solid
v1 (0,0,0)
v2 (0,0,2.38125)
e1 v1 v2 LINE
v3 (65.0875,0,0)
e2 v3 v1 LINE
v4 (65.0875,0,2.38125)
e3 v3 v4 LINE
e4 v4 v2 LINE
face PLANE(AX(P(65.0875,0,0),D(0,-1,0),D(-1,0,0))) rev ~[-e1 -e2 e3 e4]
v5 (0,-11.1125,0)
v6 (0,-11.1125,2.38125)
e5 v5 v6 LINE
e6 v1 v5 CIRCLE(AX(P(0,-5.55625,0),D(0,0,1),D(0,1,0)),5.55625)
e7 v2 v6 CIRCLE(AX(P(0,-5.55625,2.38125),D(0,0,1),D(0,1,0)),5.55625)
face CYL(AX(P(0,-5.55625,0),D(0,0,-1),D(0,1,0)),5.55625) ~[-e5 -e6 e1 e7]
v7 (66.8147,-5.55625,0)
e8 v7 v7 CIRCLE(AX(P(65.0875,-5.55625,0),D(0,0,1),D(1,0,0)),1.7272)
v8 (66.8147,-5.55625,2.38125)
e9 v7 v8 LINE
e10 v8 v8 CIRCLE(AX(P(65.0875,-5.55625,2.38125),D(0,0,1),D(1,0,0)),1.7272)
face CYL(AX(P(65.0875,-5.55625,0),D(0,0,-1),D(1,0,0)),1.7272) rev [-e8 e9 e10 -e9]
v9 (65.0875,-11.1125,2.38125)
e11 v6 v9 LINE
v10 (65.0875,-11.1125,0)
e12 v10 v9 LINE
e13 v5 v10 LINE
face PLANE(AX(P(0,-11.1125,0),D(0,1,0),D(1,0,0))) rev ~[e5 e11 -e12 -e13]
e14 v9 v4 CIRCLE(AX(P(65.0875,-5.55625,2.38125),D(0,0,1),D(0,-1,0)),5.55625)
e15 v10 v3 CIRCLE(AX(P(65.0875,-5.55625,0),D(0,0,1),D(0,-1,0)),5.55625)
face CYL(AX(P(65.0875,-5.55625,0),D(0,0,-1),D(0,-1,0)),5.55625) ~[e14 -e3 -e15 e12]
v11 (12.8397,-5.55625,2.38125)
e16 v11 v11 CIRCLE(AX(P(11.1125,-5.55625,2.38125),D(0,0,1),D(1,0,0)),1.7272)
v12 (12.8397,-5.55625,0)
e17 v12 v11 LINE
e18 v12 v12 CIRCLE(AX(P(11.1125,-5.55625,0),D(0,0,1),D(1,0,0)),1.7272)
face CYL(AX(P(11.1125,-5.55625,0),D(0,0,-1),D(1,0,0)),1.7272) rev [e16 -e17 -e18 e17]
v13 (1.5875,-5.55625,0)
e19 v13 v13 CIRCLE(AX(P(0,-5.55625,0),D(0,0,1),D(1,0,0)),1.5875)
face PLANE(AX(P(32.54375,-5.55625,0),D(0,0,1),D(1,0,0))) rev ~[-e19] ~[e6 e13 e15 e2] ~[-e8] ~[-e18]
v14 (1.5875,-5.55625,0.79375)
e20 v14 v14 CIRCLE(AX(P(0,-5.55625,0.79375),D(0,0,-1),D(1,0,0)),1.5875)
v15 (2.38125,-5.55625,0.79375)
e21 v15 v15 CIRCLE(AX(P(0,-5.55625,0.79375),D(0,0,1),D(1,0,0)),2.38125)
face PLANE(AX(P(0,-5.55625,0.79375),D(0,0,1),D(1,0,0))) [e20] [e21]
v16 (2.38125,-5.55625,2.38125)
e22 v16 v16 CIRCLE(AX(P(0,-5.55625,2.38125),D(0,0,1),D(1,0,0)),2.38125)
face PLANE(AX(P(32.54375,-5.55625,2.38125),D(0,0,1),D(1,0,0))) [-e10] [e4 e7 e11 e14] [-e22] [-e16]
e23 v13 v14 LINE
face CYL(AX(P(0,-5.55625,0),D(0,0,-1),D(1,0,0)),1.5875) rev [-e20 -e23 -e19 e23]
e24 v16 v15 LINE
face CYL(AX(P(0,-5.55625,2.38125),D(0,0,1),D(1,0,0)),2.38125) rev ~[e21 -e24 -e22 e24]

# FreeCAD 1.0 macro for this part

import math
import FreeCAD as App
import Part
import Sketcher
from FreeCAD import Vector
Q = App.Units.Quantity

doc = App.newDocument("Part")
params = doc.addObject("Spreadsheet::Sheet", "Params")
for row, (alias, value) in enumerate([
    ("sketch1_diameter", "0.125 in"),
    ("sketch1_diameter2", "0.136 in"),
    ("sketch1_radius", "0.21875 in"),
    ("sketch1_width", "2.5625 in"),
    ("pad1_length", "0.09375 in"),
    ("sketch2_diameter", "0.1875 in"),
    ("pocket1_length", "0.0625 in"),
], start=1):
    params.set(f"A{row}", alias)
    params.set(f"B{row}", "=" + value)
    params.setAlias(f"B{row}", alias)

body = doc.addObject("PartDesign::Body", "Body")

sketch1 = body.newObject("Sketcher::SketchObject", "Sketch")
sketch1.AttachmentSupport = (doc.getObject("XY_Plane"), [""])
sketch1.MapMode = "FlatFace"
sketch1.addGeometry(Part.LineSegment(Vector(65.1, 0, 0), Vector(0, 0, 0)), False)
sketch1.addGeometry(Part.ArcOfCircle(Part.Circle(Vector(0, -5.6, 0), Vector(0, 0, 1), 5.6), math.radians(90), math.radians(270)), False)
sketch1.addGeometry(Part.LineSegment(Vector(0, -11.1, 0), Vector(65.1, -11.1, 0)), False)
sketch1.addGeometry(Part.ArcOfCircle(Part.Circle(Vector(65.1, -5.6, 0), Vector(0, 0, 1), 5.6), math.radians(-90), math.radians(90)), False)
sketch1.addGeometry(Part.Circle(Vector(0, -5.6, 0), Vector(0, 0, 1), 1.6), False)
sketch1.addGeometry(Part.Circle(Vector(11.1, -5.6, 0), Vector(0, 0, 1), 1.7), False)
sketch1.addGeometry(Part.Circle(Vector(65.1, -5.6, 0), Vector(0, 0, 1), 1.7), False)
sketch1.addConstraint(Sketcher.Constraint("Tangent", 0, 2, 1, 1))
sketch1.addConstraint(Sketcher.Constraint("Tangent", 1, 2, 2, 1))
sketch1.addConstraint(Sketcher.Constraint("Tangent", 2, 2, 3, 1))
sketch1.addConstraint(Sketcher.Constraint("Tangent", 3, 2, 0, 1))
sketch1.addConstraint(Sketcher.Constraint("Horizontal", 0))
sketch1.addConstraint(Sketcher.Constraint("Horizontal", 2))
sketch1.addConstraint(Sketcher.Constraint("Coincident", 0, 2, -1, 1))
sketch1.addConstraint(Sketcher.Constraint("Coincident", 4, 3, 1, 3))
sketch1.addConstraint(Sketcher.Constraint("Coincident", 6, 3, 3, 3))
sketch1.addConstraint(Sketcher.Constraint("Equal", 5, 6))
sketch1.addConstraint(Sketcher.Constraint("Horizontal", 4, 3, 5, 3))
sketch1.addConstraint(Sketcher.Constraint("Diameter", 4, Q("0.125 in")))
sketch1.addConstraint(Sketcher.Constraint("Diameter", 5, Q("0.136 in")))
sketch1.addConstraint(Sketcher.Constraint("Radius", 1, Q("0.21875 in")))
sketch1.addConstraint(Sketcher.Constraint("DistanceX", 0, 2, 0, 1, Q("2.5625 in")))
sketch1.addConstraint(Sketcher.Constraint("DistanceX", -1, 1, 5, 3, Q("0.4375 in")))
sketch1.setExpression("Constraints[11]", "Params.sketch1_diameter")
sketch1.setExpression("Constraints[12]", "Params.sketch1_diameter2")
sketch1.setExpression("Constraints[13]", "Params.sketch1_radius")
sketch1.setExpression("Constraints[14]", "Params.sketch1_width")
pad1 = body.newObject("PartDesign::Pad", "Pad")
pad1.Profile = sketch1
pad1.setExpression("Length", "Params.pad1_length")

sketch2 = body.newObject("Sketcher::SketchObject", "Sketch001")
sketch2.AttachmentSupport = (doc.getObject("XY_Plane"), [""])
sketch2.MapMode = "FlatFace"
sketch2.AttachmentOffset = App.Placement(Vector(0, 0, 0.09375 * 25.4), App.Rotation())
sketch2.addGeometry(Part.Circle(Vector(0, -5.6, 0), Vector(0, 0, 1), 2.4), False)
sketch2.addConstraint(Sketcher.Constraint("PointOnObject", 0, 3, -2))
sketch2.addConstraint(Sketcher.Constraint("Diameter", 0, Q("0.1875 in")))
sketch2.addConstraint(Sketcher.Constraint("DistanceY", 0, 3, -1, 1, Q("0.21875 in")))
sketch2.setExpression("Constraints[1]", "Params.sketch2_diameter")
pocket1 = body.newObject("PartDesign::Pocket", "Pocket")
pocket1.Profile = sketch2
pocket1.setExpression("Length", "Params.pocket1_length")

doc.recompute()
